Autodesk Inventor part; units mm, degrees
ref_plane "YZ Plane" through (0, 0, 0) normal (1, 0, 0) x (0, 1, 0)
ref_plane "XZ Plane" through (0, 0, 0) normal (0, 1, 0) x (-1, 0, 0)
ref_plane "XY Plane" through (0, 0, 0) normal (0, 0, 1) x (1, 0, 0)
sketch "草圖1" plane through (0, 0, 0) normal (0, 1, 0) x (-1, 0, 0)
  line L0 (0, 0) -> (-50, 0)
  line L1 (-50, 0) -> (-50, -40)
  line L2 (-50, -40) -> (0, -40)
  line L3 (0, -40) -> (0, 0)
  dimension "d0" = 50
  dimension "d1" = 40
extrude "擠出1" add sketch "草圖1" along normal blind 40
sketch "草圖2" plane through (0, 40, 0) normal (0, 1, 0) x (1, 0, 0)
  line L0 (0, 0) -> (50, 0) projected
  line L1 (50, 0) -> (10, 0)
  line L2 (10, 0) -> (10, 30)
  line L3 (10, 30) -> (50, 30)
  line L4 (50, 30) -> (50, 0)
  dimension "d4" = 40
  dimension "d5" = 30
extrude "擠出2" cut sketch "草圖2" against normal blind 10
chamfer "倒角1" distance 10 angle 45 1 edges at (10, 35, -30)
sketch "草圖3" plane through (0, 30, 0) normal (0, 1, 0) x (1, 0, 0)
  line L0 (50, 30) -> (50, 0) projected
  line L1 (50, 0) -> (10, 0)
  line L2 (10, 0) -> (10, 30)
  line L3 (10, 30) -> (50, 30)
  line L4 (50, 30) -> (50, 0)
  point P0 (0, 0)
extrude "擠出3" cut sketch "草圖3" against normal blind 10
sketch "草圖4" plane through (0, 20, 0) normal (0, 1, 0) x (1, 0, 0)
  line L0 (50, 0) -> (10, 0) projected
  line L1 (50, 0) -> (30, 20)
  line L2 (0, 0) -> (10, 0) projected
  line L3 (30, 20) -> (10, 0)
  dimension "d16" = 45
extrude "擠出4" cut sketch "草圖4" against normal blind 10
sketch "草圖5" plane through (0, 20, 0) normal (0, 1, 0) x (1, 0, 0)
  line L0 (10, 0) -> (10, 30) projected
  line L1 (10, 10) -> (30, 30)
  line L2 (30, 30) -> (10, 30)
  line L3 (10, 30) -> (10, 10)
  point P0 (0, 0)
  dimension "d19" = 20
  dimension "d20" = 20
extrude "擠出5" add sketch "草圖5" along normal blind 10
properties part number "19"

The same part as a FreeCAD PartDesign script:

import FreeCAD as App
import Part
import Sketcher

V = App.Vector
Q = App.Units.Quantity


def edges_at(feature, points):
    """Names of the edges that pass closest to the given points."""
    edges = feature.Shape.Edges
    near = lambda p: min(range(len(edges)), key=lambda i: edges[i].distToShape(Part.Vertex(*p))[0])
    return sorted({f"Edge{near(p) + 1}" for p in points})

doc = App.newDocument("Part")
body = doc.addObject("PartDesign::Body", "Body")

# Sketch on XZ plane
sketch1 = body.newObject("Sketcher::SketchObject", "Sketch")
sketch1.AttachmentSupport = (doc.getObject("XZ_Plane"), [""])
sketch1.MapMode = "FlatFace"
sketch1.addGeometry([
    Part.LineSegment(V(0, -40, 0), V(0, 0, 0)),
    Part.LineSegment(V(0, 0, 0), V(50, 0, 0)),
    Part.LineSegment(V(50, 0, 0), V(50, -40, 0)),
    Part.LineSegment(V(50, -40, 0), V(0, -40, 0)),
], False)
sketch1.addConstraint([
    Sketcher.Constraint("Coincident", 0, 2, 1, 1),
    Sketcher.Constraint("Coincident", 1, 2, 2, 1),
    Sketcher.Constraint("Coincident", 2, 2, 3, 1),
    Sketcher.Constraint("Coincident", 3, 2, 0, 1),
    Sketcher.Constraint("Vertical", 0),
    Sketcher.Constraint("Horizontal", 1),
    Sketcher.Constraint("Vertical", 2),
    Sketcher.Constraint("Horizontal", 3),
    Sketcher.Constraint("Coincident", 0, 2, -1, 1),
    Sketcher.Constraint("DistanceX", 1, 1, 1, 2, Q("50 mm")),
    Sketcher.Constraint("DistanceY", 0, 1, 0, 2, Q("40 mm")),
])
pad1 = body.newObject("PartDesign::Pad", "Pad")
pad1.Profile = sketch1
pad1.Length = 40
pad1.Reversed = True

# Sketch on XZ plane
sketch2 = body.newObject("Sketcher::SketchObject", "Sketch001")
sketch2.AttachmentSupport = (doc.getObject("XZ_Plane"), [""])
sketch2.MapMode = "FlatFace"
sketch2.AttachmentOffset = App.Placement(V(0, 0, -40), App.Rotation())
sketch2.addGeometry([
    Part.LineSegment(V(10, -30, 0), V(10, 0, 0)),
    Part.LineSegment(V(10, 0, 0), V(50, 0, 0)),
    Part.LineSegment(V(50, 0, 0), V(50, -30, 0)),
    Part.LineSegment(V(50, -30, 0), V(10, -30, 0)),
], False)
sketch2.addConstraint([
    Sketcher.Constraint("Coincident", 0, 2, 1, 1),
    Sketcher.Constraint("Coincident", 1, 2, 2, 1),
    Sketcher.Constraint("Coincident", 2, 2, 3, 1),
    Sketcher.Constraint("Coincident", 3, 2, 0, 1),
    Sketcher.Constraint("Vertical", 0),
    Sketcher.Constraint("Horizontal", 1),
    Sketcher.Constraint("Vertical", 2),
    Sketcher.Constraint("Horizontal", 3),
    Sketcher.Constraint("PointOnObject", 0, 2, -1),
    Sketcher.Constraint("DistanceX", 1, 1, 1, 2, Q("40 mm")),
    Sketcher.Constraint("DistanceY", 0, 1, 0, 2, Q("30 mm")),
    Sketcher.Constraint("DistanceX", -1, 1, 0, 2, Q("10 mm")),
])
pocket1 = body.newObject("PartDesign::Pocket", "Pocket")
pocket1.Profile = sketch2
pocket1.Length = 10
pocket1.Reversed = True
doc.recompute()

chamfer = body.newObject("PartDesign::Chamfer", "Chamfer")
chamfer.Base = (pocket1, edges_at(pocket1, [(10, 35, -30)]))
chamfer.Size = 10

# Sketch on XZ plane
sketch3 = body.newObject("Sketcher::SketchObject", "Sketch002")
sketch3.AttachmentSupport = (doc.getObject("XZ_Plane"), [""])
sketch3.MapMode = "FlatFace"
sketch3.AttachmentOffset = App.Placement(V(0, 0, -30), App.Rotation())
sketch3.addGeometry([
    Part.LineSegment(V(50, 0, 0), V(50, -30, 0)),
    Part.LineSegment(V(50, -30, 0), V(10, -30, 0)),
    Part.LineSegment(V(10, -30, 0), V(10, 0, 0)),
    Part.LineSegment(V(10, 0, 0), V(50, 0, 0)),
], False)
sketch3.addConstraint([
    Sketcher.Constraint("Coincident", 0, 2, 1, 1),
    Sketcher.Constraint("Coincident", 1, 2, 2, 1),
    Sketcher.Constraint("Coincident", 2, 2, 3, 1),
    Sketcher.Constraint("Coincident", 3, 2, 0, 1),
    Sketcher.Constraint("Vertical", 0),
    Sketcher.Constraint("Horizontal", 1),
    Sketcher.Constraint("Vertical", 2),
    Sketcher.Constraint("Horizontal", 3),
    Sketcher.Constraint("PointOnObject", 2, 2, -1),
    Sketcher.Constraint("DistanceX", 1, 2, 1, 1, Q("40 mm")),
    Sketcher.Constraint("DistanceY", 0, 2, 0, 1, Q("30 mm")),
    Sketcher.Constraint("DistanceX", -1, 1, 0, 2, Q("50 mm")),
])
pocket2 = body.newObject("PartDesign::Pocket", "Pocket001")
pocket2.Profile = sketch3
pocket2.Length = 10
pocket2.Reversed = True

# Sketch on XZ plane
sketch4 = body.newObject("Sketcher::SketchObject", "Sketch003")
sketch4.AttachmentSupport = (doc.getObject("XZ_Plane"), [""])
sketch4.MapMode = "FlatFace"
sketch4.AttachmentOffset = App.Placement(V(0, 0, -20), App.Rotation())
sketch4.addGeometry([
    Part.LineSegment(V(10, 0, 0), V(50, 0, 0)),
    Part.LineSegment(V(50, 0, 0), V(30, -20, 0)),
    Part.LineSegment(V(30, -20, 0), V(10, 0, 0)),
], False)
sketch4.addConstraint([
    Sketcher.Constraint("Coincident", 0, 2, 1, 1),
    Sketcher.Constraint("Coincident", 1, 2, 2, 1),
    Sketcher.Constraint("Coincident", 2, 2, 0, 1),
    Sketcher.Constraint("Horizontal", 0),
    Sketcher.Constraint("PointOnObject", 0, 2, -1),
    Sketcher.Constraint("Perpendicular", 1, 2),
    Sketcher.Constraint("Equal", 1, 2),
    Sketcher.Constraint("DistanceX", 0, 1, 0, 2, Q("40 mm")),
    Sketcher.Constraint("DistanceX", -1, 1, 0, 2, Q("50 mm")),
])
pocket3 = body.newObject("PartDesign::Pocket", "Pocket002")
pocket3.Profile = sketch4
pocket3.Length = 10
pocket3.Reversed = True

# Sketch on XZ plane
sketch5 = body.newObject("Sketcher::SketchObject", "Sketch004")
sketch5.AttachmentSupport = (doc.getObject("XZ_Plane"), [""])
sketch5.MapMode = "FlatFace"
sketch5.AttachmentOffset = App.Placement(V(0, 0, -20), App.Rotation())
sketch5.addGeometry([
    Part.LineSegment(V(10, -30, 0), V(10, -10, 0)),
    Part.LineSegment(V(10, -10, 0), V(30, -30, 0)),
    Part.LineSegment(V(30, -30, 0), V(10, -30, 0)),
], False)
sketch5.addConstraint([
    Sketcher.Constraint("Coincident", 0, 2, 1, 1),
    Sketcher.Constraint("Coincident", 1, 2, 2, 1),
    Sketcher.Constraint("Coincident", 2, 2, 0, 1),
    Sketcher.Constraint("Vertical", 0),
    Sketcher.Constraint("Horizontal", 2),
    Sketcher.Constraint("Equal", 2, 0),
    Sketcher.Constraint("DistanceX", 2, 2, 2, 1, Q("20 mm")),
    Sketcher.Constraint("DistanceX", -1, 1, 0, 2, Q("10 mm")),
    Sketcher.Constraint("DistanceY", 0, 2, -1, 1, Q("10 mm")),
])
pad2 = body.newObject("PartDesign::Pad", "Pad001")
pad2.Profile = sketch5
pad2.Length = 10
pad2.Reversed = True

doc.recompute()
